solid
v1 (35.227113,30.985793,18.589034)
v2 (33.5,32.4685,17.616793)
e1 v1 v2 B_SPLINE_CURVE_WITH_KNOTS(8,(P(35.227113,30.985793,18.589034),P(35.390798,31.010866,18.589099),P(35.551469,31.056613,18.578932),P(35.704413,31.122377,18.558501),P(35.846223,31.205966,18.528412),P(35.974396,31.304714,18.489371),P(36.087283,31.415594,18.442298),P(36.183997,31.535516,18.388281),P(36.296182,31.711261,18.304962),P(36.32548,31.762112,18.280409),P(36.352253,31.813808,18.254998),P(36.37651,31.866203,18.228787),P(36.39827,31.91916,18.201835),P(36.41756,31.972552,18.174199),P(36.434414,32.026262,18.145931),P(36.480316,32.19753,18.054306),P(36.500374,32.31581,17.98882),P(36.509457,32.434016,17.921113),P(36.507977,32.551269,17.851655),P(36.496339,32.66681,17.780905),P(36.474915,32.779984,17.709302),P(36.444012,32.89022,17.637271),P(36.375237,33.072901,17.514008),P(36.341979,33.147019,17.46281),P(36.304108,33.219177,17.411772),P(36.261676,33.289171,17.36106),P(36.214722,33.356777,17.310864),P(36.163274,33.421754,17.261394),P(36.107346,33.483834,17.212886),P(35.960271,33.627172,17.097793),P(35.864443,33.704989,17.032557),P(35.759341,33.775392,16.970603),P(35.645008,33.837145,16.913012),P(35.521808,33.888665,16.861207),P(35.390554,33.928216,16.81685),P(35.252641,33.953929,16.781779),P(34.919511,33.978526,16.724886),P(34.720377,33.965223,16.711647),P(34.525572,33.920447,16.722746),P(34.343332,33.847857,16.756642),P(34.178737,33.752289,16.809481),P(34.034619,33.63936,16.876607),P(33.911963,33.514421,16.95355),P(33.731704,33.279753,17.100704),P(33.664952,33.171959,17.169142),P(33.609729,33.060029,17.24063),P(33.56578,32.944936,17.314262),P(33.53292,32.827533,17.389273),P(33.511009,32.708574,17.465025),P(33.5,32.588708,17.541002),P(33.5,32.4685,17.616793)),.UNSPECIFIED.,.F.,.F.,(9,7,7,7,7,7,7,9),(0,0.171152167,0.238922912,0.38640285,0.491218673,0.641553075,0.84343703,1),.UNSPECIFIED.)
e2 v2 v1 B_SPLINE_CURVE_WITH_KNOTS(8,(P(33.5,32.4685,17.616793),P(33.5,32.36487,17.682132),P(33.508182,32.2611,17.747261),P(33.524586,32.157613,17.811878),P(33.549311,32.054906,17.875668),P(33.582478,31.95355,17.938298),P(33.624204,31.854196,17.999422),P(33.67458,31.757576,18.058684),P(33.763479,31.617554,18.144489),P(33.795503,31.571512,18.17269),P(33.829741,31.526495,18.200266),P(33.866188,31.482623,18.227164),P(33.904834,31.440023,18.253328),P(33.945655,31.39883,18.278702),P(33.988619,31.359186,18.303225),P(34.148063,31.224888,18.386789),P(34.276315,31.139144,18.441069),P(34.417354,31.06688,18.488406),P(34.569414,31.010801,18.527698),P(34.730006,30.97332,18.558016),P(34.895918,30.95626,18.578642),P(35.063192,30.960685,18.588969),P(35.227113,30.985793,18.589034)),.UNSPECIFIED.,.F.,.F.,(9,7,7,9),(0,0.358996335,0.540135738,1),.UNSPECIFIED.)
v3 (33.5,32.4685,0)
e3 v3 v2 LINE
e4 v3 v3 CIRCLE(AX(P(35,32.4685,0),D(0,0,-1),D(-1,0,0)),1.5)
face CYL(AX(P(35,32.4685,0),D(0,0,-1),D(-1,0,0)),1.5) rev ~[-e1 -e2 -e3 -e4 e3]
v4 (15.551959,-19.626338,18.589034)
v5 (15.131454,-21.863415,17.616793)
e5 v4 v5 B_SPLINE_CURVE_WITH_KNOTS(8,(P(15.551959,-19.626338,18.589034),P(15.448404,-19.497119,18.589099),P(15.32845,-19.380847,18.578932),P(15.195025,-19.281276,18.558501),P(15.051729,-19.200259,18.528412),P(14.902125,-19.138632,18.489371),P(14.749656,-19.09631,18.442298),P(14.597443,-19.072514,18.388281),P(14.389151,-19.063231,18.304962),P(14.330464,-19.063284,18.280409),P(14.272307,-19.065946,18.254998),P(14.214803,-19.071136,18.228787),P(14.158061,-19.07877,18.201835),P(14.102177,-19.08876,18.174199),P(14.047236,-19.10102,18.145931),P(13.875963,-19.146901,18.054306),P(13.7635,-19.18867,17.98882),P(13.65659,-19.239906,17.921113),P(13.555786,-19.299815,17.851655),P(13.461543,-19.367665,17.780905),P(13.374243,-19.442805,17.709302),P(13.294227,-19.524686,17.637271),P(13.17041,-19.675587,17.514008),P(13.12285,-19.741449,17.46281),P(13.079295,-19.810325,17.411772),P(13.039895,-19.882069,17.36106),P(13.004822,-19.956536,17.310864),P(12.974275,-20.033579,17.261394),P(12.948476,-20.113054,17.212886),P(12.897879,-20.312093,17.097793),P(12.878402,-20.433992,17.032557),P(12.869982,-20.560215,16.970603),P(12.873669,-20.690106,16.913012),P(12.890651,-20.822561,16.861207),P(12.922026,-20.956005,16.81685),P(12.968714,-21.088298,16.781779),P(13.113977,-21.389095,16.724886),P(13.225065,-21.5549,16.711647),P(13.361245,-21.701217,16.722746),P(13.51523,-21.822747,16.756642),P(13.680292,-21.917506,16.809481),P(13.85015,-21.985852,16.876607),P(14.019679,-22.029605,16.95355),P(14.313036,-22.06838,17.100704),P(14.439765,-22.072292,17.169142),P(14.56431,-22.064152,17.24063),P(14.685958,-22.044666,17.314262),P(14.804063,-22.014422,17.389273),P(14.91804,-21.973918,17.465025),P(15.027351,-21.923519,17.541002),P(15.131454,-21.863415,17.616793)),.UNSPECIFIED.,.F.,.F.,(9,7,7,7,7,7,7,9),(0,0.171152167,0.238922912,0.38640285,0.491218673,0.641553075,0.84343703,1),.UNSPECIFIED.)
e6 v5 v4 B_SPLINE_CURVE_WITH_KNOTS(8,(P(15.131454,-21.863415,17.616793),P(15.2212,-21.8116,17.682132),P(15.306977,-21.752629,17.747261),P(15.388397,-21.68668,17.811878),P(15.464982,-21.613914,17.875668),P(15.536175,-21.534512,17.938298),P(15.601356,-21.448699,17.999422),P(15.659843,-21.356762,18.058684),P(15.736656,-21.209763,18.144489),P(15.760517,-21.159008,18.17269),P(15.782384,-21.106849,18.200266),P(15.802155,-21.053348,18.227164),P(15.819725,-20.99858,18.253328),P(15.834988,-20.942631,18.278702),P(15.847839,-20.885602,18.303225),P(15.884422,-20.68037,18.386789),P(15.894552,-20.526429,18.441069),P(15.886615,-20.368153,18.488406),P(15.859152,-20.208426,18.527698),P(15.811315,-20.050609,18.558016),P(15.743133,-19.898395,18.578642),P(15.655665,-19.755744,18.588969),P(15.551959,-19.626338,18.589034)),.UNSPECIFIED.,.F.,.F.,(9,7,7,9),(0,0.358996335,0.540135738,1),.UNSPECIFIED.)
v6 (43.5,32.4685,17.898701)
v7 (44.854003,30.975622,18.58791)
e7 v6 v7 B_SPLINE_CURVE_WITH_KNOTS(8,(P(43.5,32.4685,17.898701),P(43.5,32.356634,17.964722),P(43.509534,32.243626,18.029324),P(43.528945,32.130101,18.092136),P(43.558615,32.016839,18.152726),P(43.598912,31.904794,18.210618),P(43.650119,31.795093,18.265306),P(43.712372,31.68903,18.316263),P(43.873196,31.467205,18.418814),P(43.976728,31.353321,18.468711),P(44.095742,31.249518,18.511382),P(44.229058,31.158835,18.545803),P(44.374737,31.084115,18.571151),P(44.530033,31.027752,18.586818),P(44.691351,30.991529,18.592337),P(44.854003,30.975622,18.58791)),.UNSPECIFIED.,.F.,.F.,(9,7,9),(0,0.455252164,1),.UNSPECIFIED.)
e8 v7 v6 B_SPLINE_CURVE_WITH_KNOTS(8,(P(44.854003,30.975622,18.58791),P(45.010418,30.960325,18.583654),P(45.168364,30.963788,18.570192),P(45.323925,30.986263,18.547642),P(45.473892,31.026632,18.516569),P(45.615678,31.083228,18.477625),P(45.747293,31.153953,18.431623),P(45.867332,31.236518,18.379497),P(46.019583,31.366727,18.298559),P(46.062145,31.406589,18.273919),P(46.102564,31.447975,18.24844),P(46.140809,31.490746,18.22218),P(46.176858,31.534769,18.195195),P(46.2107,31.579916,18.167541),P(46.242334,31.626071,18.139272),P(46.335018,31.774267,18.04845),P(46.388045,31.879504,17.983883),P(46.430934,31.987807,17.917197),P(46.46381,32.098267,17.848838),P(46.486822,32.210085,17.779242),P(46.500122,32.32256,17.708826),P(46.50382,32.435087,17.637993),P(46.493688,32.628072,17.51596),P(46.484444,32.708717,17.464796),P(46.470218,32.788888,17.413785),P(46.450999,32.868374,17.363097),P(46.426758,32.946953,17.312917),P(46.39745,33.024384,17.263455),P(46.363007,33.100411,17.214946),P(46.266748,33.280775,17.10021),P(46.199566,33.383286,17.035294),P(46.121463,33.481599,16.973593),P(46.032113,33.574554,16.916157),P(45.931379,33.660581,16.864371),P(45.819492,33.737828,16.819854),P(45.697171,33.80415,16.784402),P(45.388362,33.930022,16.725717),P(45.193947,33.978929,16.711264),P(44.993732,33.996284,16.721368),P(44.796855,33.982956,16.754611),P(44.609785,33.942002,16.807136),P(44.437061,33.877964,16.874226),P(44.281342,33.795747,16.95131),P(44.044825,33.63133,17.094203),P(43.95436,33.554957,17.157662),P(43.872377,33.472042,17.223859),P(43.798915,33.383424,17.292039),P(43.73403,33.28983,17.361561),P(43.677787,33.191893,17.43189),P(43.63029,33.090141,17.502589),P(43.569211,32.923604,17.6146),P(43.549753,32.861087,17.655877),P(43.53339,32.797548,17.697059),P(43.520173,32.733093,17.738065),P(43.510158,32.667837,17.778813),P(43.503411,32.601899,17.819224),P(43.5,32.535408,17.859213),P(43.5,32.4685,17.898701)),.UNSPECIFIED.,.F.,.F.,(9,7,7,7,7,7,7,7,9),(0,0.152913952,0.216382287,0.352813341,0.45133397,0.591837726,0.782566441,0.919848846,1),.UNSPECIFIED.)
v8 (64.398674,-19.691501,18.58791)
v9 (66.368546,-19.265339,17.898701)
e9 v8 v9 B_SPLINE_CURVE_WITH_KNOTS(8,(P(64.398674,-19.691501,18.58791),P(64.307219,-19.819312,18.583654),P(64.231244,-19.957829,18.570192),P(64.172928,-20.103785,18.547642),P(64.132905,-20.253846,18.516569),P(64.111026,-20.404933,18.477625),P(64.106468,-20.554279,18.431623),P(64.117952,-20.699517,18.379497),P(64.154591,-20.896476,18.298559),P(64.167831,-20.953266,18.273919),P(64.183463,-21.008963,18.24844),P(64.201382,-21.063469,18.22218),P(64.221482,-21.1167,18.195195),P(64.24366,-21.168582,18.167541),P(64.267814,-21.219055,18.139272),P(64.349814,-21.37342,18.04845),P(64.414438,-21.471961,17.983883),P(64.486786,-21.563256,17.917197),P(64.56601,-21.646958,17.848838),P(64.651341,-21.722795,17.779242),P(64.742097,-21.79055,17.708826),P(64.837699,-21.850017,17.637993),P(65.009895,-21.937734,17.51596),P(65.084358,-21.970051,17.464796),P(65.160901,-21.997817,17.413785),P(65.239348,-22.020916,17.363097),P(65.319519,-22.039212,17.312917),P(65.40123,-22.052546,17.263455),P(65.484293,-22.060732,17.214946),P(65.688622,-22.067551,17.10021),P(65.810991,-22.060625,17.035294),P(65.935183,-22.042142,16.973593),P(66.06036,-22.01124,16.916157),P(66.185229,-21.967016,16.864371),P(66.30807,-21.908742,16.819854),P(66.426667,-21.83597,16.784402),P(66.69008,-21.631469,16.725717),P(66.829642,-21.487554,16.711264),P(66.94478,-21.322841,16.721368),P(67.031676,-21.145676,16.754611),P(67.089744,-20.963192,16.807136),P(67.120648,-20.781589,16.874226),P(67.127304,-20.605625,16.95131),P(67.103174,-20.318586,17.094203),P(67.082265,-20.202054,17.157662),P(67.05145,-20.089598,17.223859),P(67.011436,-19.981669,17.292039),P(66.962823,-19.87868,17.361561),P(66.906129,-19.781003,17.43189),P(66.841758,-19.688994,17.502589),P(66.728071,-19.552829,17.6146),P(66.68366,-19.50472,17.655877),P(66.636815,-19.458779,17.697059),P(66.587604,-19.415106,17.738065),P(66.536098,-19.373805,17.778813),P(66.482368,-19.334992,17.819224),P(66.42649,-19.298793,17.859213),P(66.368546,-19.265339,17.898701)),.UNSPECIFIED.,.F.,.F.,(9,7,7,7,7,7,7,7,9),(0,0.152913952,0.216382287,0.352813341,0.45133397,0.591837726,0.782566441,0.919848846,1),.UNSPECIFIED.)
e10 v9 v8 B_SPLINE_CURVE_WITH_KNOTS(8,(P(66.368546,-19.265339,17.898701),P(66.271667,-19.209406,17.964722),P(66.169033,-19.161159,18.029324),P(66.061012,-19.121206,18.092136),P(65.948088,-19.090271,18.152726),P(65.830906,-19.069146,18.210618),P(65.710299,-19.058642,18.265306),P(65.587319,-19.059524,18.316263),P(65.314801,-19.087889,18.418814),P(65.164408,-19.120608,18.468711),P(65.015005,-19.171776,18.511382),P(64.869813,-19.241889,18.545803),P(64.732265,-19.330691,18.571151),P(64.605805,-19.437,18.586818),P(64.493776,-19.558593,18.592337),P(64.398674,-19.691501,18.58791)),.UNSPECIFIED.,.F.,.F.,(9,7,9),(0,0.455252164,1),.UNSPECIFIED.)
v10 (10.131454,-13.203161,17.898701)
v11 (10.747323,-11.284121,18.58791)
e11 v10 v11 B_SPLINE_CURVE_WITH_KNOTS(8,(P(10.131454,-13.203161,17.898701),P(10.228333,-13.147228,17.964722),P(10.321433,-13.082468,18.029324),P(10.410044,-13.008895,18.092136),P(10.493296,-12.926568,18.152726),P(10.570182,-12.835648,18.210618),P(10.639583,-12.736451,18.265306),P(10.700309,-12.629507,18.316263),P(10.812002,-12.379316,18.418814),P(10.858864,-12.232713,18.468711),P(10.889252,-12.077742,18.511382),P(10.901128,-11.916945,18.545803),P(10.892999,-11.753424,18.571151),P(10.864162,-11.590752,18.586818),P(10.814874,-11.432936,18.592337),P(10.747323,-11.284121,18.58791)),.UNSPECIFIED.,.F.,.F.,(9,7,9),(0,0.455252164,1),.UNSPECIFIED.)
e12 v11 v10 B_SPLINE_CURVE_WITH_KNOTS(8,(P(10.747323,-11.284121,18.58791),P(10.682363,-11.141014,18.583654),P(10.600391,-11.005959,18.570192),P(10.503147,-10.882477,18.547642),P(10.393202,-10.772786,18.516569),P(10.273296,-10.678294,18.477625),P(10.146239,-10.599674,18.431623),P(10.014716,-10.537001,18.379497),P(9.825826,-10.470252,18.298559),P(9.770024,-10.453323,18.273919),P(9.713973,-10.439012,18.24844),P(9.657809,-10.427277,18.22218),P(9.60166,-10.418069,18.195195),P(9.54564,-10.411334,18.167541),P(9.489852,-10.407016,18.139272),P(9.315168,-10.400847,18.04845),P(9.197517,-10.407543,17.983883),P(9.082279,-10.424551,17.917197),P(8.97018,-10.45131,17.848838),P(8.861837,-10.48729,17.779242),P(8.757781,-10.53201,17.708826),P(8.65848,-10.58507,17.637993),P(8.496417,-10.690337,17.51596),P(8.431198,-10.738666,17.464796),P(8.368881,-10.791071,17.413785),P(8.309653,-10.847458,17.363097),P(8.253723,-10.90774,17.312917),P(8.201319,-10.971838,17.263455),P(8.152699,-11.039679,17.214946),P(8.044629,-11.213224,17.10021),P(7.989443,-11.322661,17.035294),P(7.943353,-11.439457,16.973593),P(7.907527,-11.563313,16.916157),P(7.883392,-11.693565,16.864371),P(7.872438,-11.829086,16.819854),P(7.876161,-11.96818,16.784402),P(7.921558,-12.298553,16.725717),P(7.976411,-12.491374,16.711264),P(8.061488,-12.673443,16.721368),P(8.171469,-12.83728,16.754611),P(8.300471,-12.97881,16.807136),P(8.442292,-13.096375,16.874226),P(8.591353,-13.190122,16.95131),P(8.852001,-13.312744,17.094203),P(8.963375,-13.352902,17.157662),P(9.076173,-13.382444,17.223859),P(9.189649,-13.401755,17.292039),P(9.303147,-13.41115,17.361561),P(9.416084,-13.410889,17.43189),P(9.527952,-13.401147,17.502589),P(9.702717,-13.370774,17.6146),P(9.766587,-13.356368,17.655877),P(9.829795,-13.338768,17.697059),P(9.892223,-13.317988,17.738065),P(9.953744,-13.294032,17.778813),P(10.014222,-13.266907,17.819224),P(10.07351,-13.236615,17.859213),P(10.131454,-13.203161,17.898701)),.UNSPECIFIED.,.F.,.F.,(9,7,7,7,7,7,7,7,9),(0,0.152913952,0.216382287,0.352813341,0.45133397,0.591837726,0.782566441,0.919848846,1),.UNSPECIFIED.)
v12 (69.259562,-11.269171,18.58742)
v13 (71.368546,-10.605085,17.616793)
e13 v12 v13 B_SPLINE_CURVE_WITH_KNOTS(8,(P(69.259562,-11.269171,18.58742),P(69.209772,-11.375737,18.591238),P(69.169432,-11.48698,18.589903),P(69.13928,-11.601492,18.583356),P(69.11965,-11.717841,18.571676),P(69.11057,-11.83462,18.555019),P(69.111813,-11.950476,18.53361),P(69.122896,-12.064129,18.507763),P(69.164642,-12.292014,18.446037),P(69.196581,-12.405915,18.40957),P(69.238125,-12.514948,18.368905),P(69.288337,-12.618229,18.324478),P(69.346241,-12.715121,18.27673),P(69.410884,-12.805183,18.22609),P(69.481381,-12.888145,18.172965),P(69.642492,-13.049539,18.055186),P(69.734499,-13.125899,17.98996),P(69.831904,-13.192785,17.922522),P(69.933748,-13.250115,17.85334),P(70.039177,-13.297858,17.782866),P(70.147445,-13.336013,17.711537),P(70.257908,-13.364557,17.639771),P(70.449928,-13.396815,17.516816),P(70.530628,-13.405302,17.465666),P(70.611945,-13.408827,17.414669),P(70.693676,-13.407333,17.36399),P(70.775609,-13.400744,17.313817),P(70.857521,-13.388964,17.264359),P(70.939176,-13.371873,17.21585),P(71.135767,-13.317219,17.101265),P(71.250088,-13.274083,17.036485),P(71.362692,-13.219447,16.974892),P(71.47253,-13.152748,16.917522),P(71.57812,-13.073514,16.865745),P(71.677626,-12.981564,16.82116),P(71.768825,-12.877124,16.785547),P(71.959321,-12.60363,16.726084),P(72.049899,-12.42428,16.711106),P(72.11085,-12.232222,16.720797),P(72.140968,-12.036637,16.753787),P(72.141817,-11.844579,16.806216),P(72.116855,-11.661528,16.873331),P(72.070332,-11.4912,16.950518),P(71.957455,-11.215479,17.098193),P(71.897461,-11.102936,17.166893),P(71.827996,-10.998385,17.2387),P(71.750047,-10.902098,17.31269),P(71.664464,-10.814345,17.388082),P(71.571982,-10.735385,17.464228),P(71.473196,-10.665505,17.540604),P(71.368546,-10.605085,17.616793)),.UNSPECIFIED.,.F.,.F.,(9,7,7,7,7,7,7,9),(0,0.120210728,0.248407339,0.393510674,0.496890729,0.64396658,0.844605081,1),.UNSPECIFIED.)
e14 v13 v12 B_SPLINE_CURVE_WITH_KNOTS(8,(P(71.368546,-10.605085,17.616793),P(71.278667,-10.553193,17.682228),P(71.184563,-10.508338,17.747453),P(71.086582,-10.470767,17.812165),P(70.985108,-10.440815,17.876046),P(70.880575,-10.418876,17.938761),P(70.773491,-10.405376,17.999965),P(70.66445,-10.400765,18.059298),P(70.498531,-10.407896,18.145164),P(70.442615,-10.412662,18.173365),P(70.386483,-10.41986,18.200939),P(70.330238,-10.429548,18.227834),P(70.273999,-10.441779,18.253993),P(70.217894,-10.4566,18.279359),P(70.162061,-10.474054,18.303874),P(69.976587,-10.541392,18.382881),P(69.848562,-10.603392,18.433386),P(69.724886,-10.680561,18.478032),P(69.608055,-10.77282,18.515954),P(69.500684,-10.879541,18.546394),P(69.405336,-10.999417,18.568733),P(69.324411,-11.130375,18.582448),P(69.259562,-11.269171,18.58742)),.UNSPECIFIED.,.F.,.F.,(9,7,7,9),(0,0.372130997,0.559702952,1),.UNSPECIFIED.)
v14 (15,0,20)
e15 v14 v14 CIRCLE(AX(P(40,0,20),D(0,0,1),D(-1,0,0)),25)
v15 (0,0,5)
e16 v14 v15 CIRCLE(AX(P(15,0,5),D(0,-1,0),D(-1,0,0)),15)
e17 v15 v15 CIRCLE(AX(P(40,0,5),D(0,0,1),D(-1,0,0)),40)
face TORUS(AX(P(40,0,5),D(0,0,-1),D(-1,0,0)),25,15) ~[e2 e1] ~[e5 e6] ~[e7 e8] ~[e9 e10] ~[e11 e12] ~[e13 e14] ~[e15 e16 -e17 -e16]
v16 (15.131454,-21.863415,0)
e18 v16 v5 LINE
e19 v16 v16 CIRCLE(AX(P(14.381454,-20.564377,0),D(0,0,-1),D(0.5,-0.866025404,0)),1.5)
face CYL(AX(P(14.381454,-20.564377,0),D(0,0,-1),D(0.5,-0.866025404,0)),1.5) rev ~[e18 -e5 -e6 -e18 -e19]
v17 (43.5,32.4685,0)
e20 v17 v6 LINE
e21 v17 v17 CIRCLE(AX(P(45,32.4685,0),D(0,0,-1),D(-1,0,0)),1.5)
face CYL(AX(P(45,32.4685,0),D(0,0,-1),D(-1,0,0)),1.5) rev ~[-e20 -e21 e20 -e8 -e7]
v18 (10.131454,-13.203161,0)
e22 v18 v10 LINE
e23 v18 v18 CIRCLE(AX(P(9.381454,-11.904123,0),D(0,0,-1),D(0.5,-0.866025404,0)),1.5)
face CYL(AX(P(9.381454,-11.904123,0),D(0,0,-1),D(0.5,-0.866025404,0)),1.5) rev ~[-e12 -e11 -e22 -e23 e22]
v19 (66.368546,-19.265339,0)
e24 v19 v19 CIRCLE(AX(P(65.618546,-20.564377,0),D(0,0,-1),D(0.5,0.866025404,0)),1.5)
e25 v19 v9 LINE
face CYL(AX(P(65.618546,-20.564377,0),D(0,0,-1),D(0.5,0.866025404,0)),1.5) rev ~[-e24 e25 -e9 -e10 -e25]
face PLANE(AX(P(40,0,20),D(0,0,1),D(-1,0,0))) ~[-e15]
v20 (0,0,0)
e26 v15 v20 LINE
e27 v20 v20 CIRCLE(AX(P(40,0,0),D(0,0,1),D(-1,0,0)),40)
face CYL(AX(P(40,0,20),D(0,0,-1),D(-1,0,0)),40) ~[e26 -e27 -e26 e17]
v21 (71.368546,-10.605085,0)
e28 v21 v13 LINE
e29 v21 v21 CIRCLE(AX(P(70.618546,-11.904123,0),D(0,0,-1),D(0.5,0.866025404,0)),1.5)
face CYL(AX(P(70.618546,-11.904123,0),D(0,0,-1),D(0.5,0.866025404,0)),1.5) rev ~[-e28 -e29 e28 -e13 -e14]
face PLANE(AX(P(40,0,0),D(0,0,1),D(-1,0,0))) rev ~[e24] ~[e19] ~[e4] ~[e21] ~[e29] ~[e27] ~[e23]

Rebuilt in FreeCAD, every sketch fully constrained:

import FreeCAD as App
import Part
import Sketcher
from FreeCAD import Vector


def edges_at(feature, points):
    """Names of the edges that pass closest to the given points."""
    edges = feature.Shape.Edges
    near = lambda p: min(range(len(edges)), key=lambda i: edges[i].distToShape(Part.Vertex(*p))[0])
    return sorted({f"Edge{near(p) + 1}" for p in points})

doc = App.newDocument("Part")
params = doc.addObject("Spreadsheet::Sheet", "Params")
for row, (alias, value) in enumerate([
    ("sketch1_width", "40 mm"),
    ("sketch1_height", "20 mm"),
    ("revolution_angle", "360 deg"),
    ("fillet_radius", "15 mm"),
    ("sketch2_diameter", "3 mm"),
    ("pocket1_length", "20 mm"),
], start=1):
    params.set(f"A{row}", alias)
    params.set(f"B{row}", "=" + value)
    params.setAlias(f"B{row}", alias)

body = doc.addObject("PartDesign::Body", "Body")

# Sketch on XZ plane
sketch1 = doc.addObject("Sketcher::SketchObject", "Sketch")
body.addObject(sketch1)
sketch1.AttachmentSupport = (doc.XZ_Plane, [""])
sketch1.MapMode = "FlatFace"
sketch1.addGeometry(Part.LineSegment(Vector(40, 0, 0), Vector(0, 0, 0)), False)
sketch1.addGeometry(Part.LineSegment(Vector(0, 0, 0), Vector(0, 20, 0)), False)
sketch1.addGeometry(Part.LineSegment(Vector(0, 20, 0), Vector(40, 20, 0)), False)
sketch1.addGeometry(Part.LineSegment(Vector(40, 20, 0), Vector(40, 0, 0)), False)
sketch1.addGeometry(Part.LineSegment(Vector(40, 0, 0), Vector(40, 20, 0)), True)  # axis
sketch1.addConstraint(Sketcher.Constraint("Coincident", 0, 2, 1, 1))
sketch1.addConstraint(Sketcher.Constraint("Coincident", 1, 2, 2, 1))
sketch1.addConstraint(Sketcher.Constraint("Coincident", 2, 2, 3, 1))
sketch1.addConstraint(Sketcher.Constraint("Coincident", 3, 2, 0, 1))
sketch1.addConstraint(Sketcher.Constraint("Horizontal", 0))
sketch1.addConstraint(Sketcher.Constraint("Vertical", 1))
sketch1.addConstraint(Sketcher.Constraint("Horizontal", 2))
sketch1.addConstraint(Sketcher.Constraint("Vertical", 3))
sketch1.addConstraint(Sketcher.Constraint("Vertical", 4))
sketch1.addConstraint(Sketcher.Constraint("Coincident", 0, 2, -1, 1))
sketch1.addConstraint(Sketcher.Constraint("Coincident", 4, 1, 3, 2))
sketch1.addConstraint(Sketcher.Constraint("Horizontal", 1, 2, 4, 2))
sketch1.addConstraint(Sketcher.Constraint("DistanceX", 0, 2, 0, 1, 40.0))
sketch1.addConstraint(Sketcher.Constraint("DistanceY", 1, 1, 1, 2, 20.0))
sketch1.setExpression("Constraints[12]", "Params.sketch1_width")
sketch1.setExpression("Constraints[13]", "Params.sketch1_height")
revolution = doc.addObject("PartDesign::Revolution", "Revolution")
body.addObject(revolution)
revolution.Profile = sketch1
revolution.ReferenceAxis = (sketch1, ["Axis0"])
revolution.setExpression("Angle", "Params.revolution_angle")
doc.recompute()

fillet = doc.addObject("PartDesign::Fillet", "Fillet")
body.addObject(fillet)
fillet.Base = (revolution, edges_at(revolution, [(80, 0, 20)]))
fillet.setExpression("Radius", "Params.fillet_radius")

# Sketch on XY plane
sketch2 = doc.addObject("Sketcher::SketchObject", "Sketch001")
body.addObject(sketch2)
sketch2.AttachmentSupport = (doc.XY_Plane, [""])
sketch2.MapMode = "FlatFace"
sketch2.addGeometry(Part.Circle(Vector(45, 32.5, 0), Vector(0, 0, 1), 1.5), False)
sketch2.addGeometry(Part.Circle(Vector(35, 32.5, 0), Vector(0, 0, 1), 1.5), False)
sketch2.addConstraint(Sketcher.Constraint("Equal", 0, 1))
sketch2.addConstraint(Sketcher.Constraint("Horizontal", 0, 3, 1, 3))
sketch2.addConstraint(Sketcher.Constraint("Diameter", 0, 3.0))
sketch2.addConstraint(Sketcher.Constraint("DistanceX", 1, 3, 0, 3, 10.0))
sketch2.addConstraint(Sketcher.Constraint("DistanceX", -1, 1, 0, 3, 45.0))
sketch2.addConstraint(Sketcher.Constraint("DistanceY", -1, 1, 0, 3, 32.4685))
sketch2.setExpression("Constraints[2]", "Params.sketch2_diameter")
pocket1 = doc.addObject("PartDesign::Pocket", "Pocket")
body.addObject(pocket1)
pocket1.Profile = sketch2
pocket1.setExpression("Length", "Params.pocket1_length")
pocket1.Reversed = True
doc.recompute()

datumline = doc.addObject("PartDesign::Line", "DatumLine")
body.addObject(datumline)
datumline.Placement = App.Placement(Vector(40, 0, 0), App.Rotation(Vector(0, 0, 1), Vector(0, 0, 1)))
polarpattern = doc.addObject("PartDesign::PolarPattern", "PolarPattern")
body.addObject(polarpattern)
polarpattern.Originals = [pocket1]
polarpattern.Axis = (datumline, [""])
polarpattern.Angle = 360
polarpattern.Occurrences = 3
body.Tip = polarpattern

doc.recompute()
